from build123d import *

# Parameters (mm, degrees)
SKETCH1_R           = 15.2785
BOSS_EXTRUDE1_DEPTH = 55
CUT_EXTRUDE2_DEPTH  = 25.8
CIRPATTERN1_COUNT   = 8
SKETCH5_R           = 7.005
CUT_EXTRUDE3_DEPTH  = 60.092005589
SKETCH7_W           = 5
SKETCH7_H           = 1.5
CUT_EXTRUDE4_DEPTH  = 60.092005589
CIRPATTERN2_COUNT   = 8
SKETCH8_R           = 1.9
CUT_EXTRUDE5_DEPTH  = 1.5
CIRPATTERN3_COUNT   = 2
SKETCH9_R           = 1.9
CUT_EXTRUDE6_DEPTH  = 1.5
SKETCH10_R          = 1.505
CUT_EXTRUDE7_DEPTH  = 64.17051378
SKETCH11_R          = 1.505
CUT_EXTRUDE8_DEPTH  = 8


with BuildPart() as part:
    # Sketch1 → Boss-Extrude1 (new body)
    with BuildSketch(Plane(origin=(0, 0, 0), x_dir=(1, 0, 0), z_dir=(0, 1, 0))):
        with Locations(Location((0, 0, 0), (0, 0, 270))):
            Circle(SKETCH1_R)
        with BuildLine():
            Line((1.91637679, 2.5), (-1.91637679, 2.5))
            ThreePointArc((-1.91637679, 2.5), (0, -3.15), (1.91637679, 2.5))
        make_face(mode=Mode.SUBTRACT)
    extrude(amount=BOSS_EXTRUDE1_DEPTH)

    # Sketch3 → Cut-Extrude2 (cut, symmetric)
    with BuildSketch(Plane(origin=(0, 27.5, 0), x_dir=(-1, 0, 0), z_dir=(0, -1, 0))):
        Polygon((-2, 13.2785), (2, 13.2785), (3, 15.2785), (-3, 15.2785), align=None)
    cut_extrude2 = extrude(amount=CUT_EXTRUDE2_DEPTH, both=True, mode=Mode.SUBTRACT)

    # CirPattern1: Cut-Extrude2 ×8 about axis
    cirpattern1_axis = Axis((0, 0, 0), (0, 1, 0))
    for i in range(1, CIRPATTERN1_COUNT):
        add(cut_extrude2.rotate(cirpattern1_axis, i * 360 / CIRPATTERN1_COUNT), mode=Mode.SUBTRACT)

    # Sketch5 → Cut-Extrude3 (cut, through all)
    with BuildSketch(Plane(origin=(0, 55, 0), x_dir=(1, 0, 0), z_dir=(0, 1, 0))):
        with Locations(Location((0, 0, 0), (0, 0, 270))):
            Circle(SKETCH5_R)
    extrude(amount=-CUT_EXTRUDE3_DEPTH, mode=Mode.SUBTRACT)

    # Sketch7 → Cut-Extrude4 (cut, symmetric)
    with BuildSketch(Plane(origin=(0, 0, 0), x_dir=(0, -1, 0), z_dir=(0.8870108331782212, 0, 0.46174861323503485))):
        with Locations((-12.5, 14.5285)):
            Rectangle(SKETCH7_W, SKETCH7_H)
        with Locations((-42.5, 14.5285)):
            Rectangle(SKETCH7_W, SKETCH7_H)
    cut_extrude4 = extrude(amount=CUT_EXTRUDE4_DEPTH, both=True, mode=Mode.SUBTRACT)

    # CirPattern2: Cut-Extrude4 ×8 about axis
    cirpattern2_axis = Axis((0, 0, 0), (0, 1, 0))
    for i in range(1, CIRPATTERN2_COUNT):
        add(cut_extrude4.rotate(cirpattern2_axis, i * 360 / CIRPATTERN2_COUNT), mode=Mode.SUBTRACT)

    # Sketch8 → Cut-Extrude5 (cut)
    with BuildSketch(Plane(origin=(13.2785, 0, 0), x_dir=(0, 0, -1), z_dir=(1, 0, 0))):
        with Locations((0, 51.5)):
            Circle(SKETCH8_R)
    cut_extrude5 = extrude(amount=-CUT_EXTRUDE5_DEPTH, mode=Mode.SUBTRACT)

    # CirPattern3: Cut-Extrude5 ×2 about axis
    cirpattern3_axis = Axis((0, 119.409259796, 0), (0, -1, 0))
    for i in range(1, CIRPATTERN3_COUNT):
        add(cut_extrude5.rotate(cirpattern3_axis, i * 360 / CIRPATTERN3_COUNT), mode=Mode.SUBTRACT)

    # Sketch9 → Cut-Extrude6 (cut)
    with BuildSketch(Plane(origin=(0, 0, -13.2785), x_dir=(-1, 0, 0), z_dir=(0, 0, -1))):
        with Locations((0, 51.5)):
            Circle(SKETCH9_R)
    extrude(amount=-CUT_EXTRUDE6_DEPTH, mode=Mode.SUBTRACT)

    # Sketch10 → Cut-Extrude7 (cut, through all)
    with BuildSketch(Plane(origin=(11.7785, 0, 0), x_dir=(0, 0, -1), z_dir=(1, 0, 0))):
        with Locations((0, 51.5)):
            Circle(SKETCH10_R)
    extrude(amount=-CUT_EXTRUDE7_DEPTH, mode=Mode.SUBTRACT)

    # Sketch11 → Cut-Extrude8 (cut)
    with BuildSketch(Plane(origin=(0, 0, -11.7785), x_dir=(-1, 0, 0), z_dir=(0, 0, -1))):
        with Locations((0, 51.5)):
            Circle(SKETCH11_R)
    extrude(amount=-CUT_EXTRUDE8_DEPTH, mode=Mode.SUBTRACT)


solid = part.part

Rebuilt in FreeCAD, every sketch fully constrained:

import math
import FreeCAD as App
import Part
import Sketcher

doc = App.newDocument("Part")
body = doc.addObject("PartDesign::Body", "Body")

# Sketch on XZ plane
sketch1 = body.newObject("Sketcher::SketchObject", "Sketch")
sketch1.AttachmentSupport = (doc.getObject("XZ_Plane"), [""])
sketch1.MapMode = "FlatFace"
sketch1.addGeometry(Part.Circle(App.Vector(0, 0, 0), App.Vector(0, 0, 1), 15.2785), False)
sketch1.addGeometry(Part.LineSegment(App.Vector(-1.916377, -2.5, 0), App.Vector(1.916377, -2.5, 0)), False)
sketch1.addGeometry(Part.ArcOfCircle(Part.Circle(App.Vector(0, 0, 0), App.Vector(0, 0, 1), 3.15), math.radians(-52.528005), math.radians(232.528005)), False)
sketch1.addConstraint(Sketcher.Constraint("Coincident", 1, 1, 2, 2))
sketch1.addConstraint(Sketcher.Constraint("Coincident", 2, 1, 1, 2))
sketch1.addConstraint(Sketcher.Constraint("Horizontal", 1))
sketch1.addConstraint(Sketcher.Constraint("Coincident", 0, 3, -1, 1))
sketch1.addConstraint(Sketcher.Constraint("Coincident", 2, 3, -1, 1))
sketch1.addConstraint(Sketcher.Constraint("Radius", 2, 3.15))
sketch1.addConstraint(Sketcher.Constraint("Diameter", 0, 30.557))
sketch1.addConstraint(Sketcher.Constraint("DistanceY", 1, 1, -1, 1, 2.5))
pad1 = body.newObject("PartDesign::Pad", "Pad")
pad1.Profile = sketch1
pad1.Length = 55
pad1.Reversed = True

# Sketch on XZ plane
sketch2 = body.newObject("Sketcher::SketchObject", "Sketch001")
sketch2.AttachmentSupport = (doc.getObject("XZ_Plane"), [""])
sketch2.MapMode = "FlatFace"
sketch2.AttachmentOffset = App.Placement(App.Vector(0, 0, -27.5), App.Rotation())
sketch2.addGeometry(Part.LineSegment(App.Vector(2, -13.2785, 0), App.Vector(-2, -13.2785, 0)), False)
sketch2.addGeometry(Part.LineSegment(App.Vector(-2, -13.2785, 0), App.Vector(-3, -15.2785, 0)), False)
sketch2.addGeometry(Part.LineSegment(App.Vector(-3, -15.2785, 0), App.Vector(3, -15.2785, 0)), False)
sketch2.addGeometry(Part.LineSegment(App.Vector(3, -15.2785, 0), App.Vector(2, -13.2785, 0)), False)
sketch2.addConstraint(Sketcher.Constraint("Coincident", 0, 2, 1, 1))
sketch2.addConstraint(Sketcher.Constraint("Coincident", 1, 2, 2, 1))
sketch2.addConstraint(Sketcher.Constraint("Coincident", 2, 2, 3, 1))
sketch2.addConstraint(Sketcher.Constraint("Coincident", 3, 2, 0, 1))
sketch2.addConstraint(Sketcher.Constraint("Horizontal", 0))
sketch2.addConstraint(Sketcher.Constraint("Horizontal", 2))
sketch2.addConstraint(Sketcher.Constraint("Equal", 1, 3))
sketch2.addConstraint(Sketcher.Constraint("DistanceX", 0, 2, 0, 1, 4.0))
sketch2.addConstraint(Sketcher.Constraint("DistanceX", 2, 1, 2, 2, 6.0))
sketch2.addConstraint(Sketcher.Constraint("DistanceX", 0, 2, -1, 1, 2.0))
sketch2.addConstraint(Sketcher.Constraint("DistanceY", 1, 2, 0, 2, 2.0))
sketch2.addConstraint(Sketcher.Constraint("DistanceY", 0, 2, -1, 1, 13.2785))
pocket1 = body.newObject("PartDesign::Pocket", "Pocket")
pocket1.Profile = sketch2
pocket1.Length = 51.6
pocket1.Midplane = True
doc.recompute()

polarpattern = body.newObject("PartDesign::PolarPattern", "PolarPattern")
polarpattern.Originals = [pocket1]
polarpattern.Axis = (doc.getObject("Y_Axis"), [""])
polarpattern.Angle = 360
polarpattern.Occurrences = 8
body.Tip = polarpattern

# Sketch on XZ plane
sketch3 = body.newObject("Sketcher::SketchObject", "Sketch002")
sketch3.AttachmentSupport = (doc.getObject("XZ_Plane"), [""])
sketch3.MapMode = "FlatFace"
sketch3.AttachmentOffset = App.Placement(App.Vector(0, 0, -55), App.Rotation())
sketch3.addGeometry(Part.Circle(App.Vector(0, 0, 0), App.Vector(0, 0, 1), 7.005), False)
sketch3.addConstraint(Sketcher.Constraint("Coincident", 0, 3, -1, 1))
sketch3.addConstraint(Sketcher.Constraint("Diameter", 0, 14.01))
pocket2 = body.newObject("PartDesign::Pocket", "Pocket001")
pocket2.Profile = sketch3
pocket2.Type = "ThroughAll"
pocket2.Reversed = True

# Sketch on an angled plane
sketch4 = body.newObject("Sketcher::SketchObject", "Sketch003")
sketch4.Placement = App.Placement(App.Vector(0, 0, 0), App.Rotation(App.Vector(0, -1, 0), App.Vector(0.461748613, 0, -0.887010833), App.Vector(0.887010833, 0, 0.461748613), "ZXY"))
sketch4.addGeometry(Part.LineSegment(App.Vector(-15, 15.2785, 0), App.Vector(-15, 13.7785, 0)), False)
sketch4.addGeometry(Part.LineSegment(App.Vector(-15, 13.7785, 0), App.Vector(-10, 13.7785, 0)), False)
sketch4.addGeometry(Part.LineSegment(App.Vector(-10, 13.7785, 0), App.Vector(-10, 15.2785, 0)), False)
sketch4.addGeometry(Part.LineSegment(App.Vector(-10, 15.2785, 0), App.Vector(-15, 15.2785, 0)), False)
sketch4.addGeometry(Part.LineSegment(App.Vector(-45, 15.2785, 0), App.Vector(-45, 13.7785, 0)), False)
sketch4.addGeometry(Part.LineSegment(App.Vector(-45, 13.7785, 0), App.Vector(-40, 13.7785, 0)), False)
sketch4.addGeometry(Part.LineSegment(App.Vector(-40, 13.7785, 0), App.Vector(-40, 15.2785, 0)), False)
sketch4.addGeometry(Part.LineSegment(App.Vector(-40, 15.2785, 0), App.Vector(-45, 15.2785, 0)), False)
sketch4.addConstraint(Sketcher.Constraint("Coincident", 0, 2, 1, 1))
sketch4.addConstraint(Sketcher.Constraint("Coincident", 1, 2, 2, 1))
sketch4.addConstraint(Sketcher.Constraint("Coincident", 2, 2, 3, 1))
sketch4.addConstraint(Sketcher.Constraint("Coincident", 3, 2, 0, 1))
sketch4.addConstraint(Sketcher.Constraint("Coincident", 4, 2, 5, 1))
sketch4.addConstraint(Sketcher.Constraint("Coincident", 5, 2, 6, 1))
sketch4.addConstraint(Sketcher.Constraint("Coincident", 6, 2, 7, 1))
sketch4.addConstraint(Sketcher.Constraint("Coincident", 7, 2, 4, 1))
sketch4.addConstraint(Sketcher.Constraint("Vertical", 0))
sketch4.addConstraint(Sketcher.Constraint("Horizontal", 1))
sketch4.addConstraint(Sketcher.Constraint("Vertical", 2))
sketch4.addConstraint(Sketcher.Constraint("Horizontal", 3))
sketch4.addConstraint(Sketcher.Constraint("Vertical", 4))
sketch4.addConstraint(Sketcher.Constraint("Horizontal", 5))
sketch4.addConstraint(Sketcher.Constraint("Vertical", 6))
sketch4.addConstraint(Sketcher.Constraint("Horizontal", 7))
sketch4.addConstraint(Sketcher.Constraint("Horizontal", 1, 2, 4, 2))
sketch4.addConstraint(Sketcher.Constraint("Horizontal", 3, 2, 6, 2))
sketch4.addConstraint(Sketcher.Constraint("Equal", 3, 5))
sketch4.addConstraint(Sketcher.Constraint("DistanceX", 1, 1, 1, 2, 5.0))
sketch4.addConstraint(Sketcher.Constraint("DistanceY", 0, 2, 0, 1, 1.5))
sketch4.addConstraint(Sketcher.Constraint("DistanceX", 0, 2, -1, 1, 15.0))
sketch4.addConstraint(Sketcher.Constraint("DistanceX", 4, 2, -1, 1, 45.0))
sketch4.addConstraint(Sketcher.Constraint("DistanceY", -1, 1, 0, 2, 13.7785))
pocket3 = body.newObject("PartDesign::Pocket", "Pocket002")
pocket3.Profile = sketch4
pocket3.Length = 120.184011
pocket3.Midplane = True
doc.recompute()

polarpattern2 = body.newObject("PartDesign::PolarPattern", "PolarPattern001")
polarpattern2.Originals = [pocket3]
polarpattern2.Axis = (doc.getObject("Y_Axis"), [""])
polarpattern2.Angle = 360
polarpattern2.Occurrences = 8
body.Tip = polarpattern2

# Sketch on YZ plane
sketch5 = body.newObject("Sketcher::SketchObject", "Sketch004")
sketch5.AttachmentSupport = (doc.getObject("YZ_Plane"), [""])
sketch5.MapMode = "FlatFace"
sketch5.AttachmentOffset = App.Placement(App.Vector(0, 0, 13.2785), App.Rotation())
sketch5.addGeometry(Part.Circle(App.Vector(51.5, 0, 0), App.Vector(0, 0, 1), 1.9), False)
sketch5.addConstraint(Sketcher.Constraint("PointOnObject", 0, 3, -1))
sketch5.addConstraint(Sketcher.Constraint("Diameter", 0, 3.8))
sketch5.addConstraint(Sketcher.Constraint("DistanceX", -1, 1, 0, 3, 51.5))
pocket4 = body.newObject("PartDesign::Pocket", "Pocket003")
pocket4.Profile = sketch5
pocket4.Length = 1.5
doc.recompute()

polarpattern3 = body.newObject("PartDesign::PolarPattern", "PolarPattern002")
polarpattern3.Originals = [pocket4]
polarpattern3.Axis = (doc.getObject("Y_Axis"), [""])
polarpattern3.Angle = 360
polarpattern3.Occurrences = 2
body.Tip = polarpattern3

# Sketch on XY plane
sketch6 = body.newObject("Sketcher::SketchObject", "Sketch005")
sketch6.AttachmentSupport = (doc.getObject("XY_Plane"), [""])
sketch6.MapMode = "FlatFace"
sketch6.AttachmentOffset = App.Placement(App.Vector(0, 0, -13.2785), App.Rotation())
sketch6.addGeometry(Part.Circle(App.Vector(0, 51.5, 0), App.Vector(0, 0, 1), 1.9), False)
sketch6.addConstraint(Sketcher.Constraint("PointOnObject", 0, 3, -2))
sketch6.addConstraint(Sketcher.Constraint("Diameter", 0, 3.8))
sketch6.addConstraint(Sketcher.Constraint("DistanceY", -1, 1, 0, 3, 51.5))
pocket5 = body.newObject("PartDesign::Pocket", "Pocket004")
pocket5.Profile = sketch6
pocket5.Length = 1.5
pocket5.Reversed = True

# Sketch on YZ plane
sketch7 = body.newObject("Sketcher::SketchObject", "Sketch006")
sketch7.AttachmentSupport = (doc.getObject("YZ_Plane"), [""])
sketch7.MapMode = "FlatFace"
sketch7.AttachmentOffset = App.Placement(App.Vector(0, 0, 11.7785), App.Rotation())
sketch7.addGeometry(Part.Circle(App.Vector(51.5, 0, 0), App.Vector(0, 0, 1), 1.505), False)
sketch7.addConstraint(Sketcher.Constraint("PointOnObject", 0, 3, -1))
sketch7.addConstraint(Sketcher.Constraint("Diameter", 0, 3.01))
sketch7.addConstraint(Sketcher.Constraint("DistanceX", -1, 1, 0, 3, 51.5))
pocket6 = body.newObject("PartDesign::Pocket", "Pocket005")
pocket6.Profile = sketch7
pocket6.Type = "ThroughAll"

# Sketch on XY plane
sketch8 = body.newObject("Sketcher::SketchObject", "Sketch007")
sketch8.AttachmentSupport = (doc.getObject("XY_Plane"), [""])
sketch8.MapMode = "FlatFace"
sketch8.AttachmentOffset = App.Placement(App.Vector(0, 0, -11.7785), App.Rotation())
sketch8.addGeometry(Part.Circle(App.Vector(0, 51.5, 0), App.Vector(0, 0, 1), 1.505), False)
sketch8.addConstraint(Sketcher.Constraint("PointOnObject", 0, 3, -2))
sketch8.addConstraint(Sketcher.Constraint("Diameter", 0, 3.01))
sketch8.addConstraint(Sketcher.Constraint("DistanceY", -1, 1, 0, 3, 51.5))
pocket7 = body.newObject("PartDesign::Pocket", "Pocket006")
pocket7.Profile = sketch8
pocket7.Length = 8
pocket7.Reversed = True

doc.recompute()
